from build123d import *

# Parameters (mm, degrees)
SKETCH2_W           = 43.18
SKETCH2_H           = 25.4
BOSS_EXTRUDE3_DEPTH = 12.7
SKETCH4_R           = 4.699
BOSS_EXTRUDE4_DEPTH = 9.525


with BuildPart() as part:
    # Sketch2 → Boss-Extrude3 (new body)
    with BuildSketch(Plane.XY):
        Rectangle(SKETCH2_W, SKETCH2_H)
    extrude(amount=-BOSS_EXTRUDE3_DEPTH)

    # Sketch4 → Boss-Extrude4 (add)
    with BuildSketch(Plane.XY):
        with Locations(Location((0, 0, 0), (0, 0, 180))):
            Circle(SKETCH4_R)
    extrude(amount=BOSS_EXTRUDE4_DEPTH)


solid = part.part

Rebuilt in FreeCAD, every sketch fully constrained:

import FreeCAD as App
import Part
import Sketcher
Q = App.Units.Quantity

doc = App.newDocument("Part")
params = doc.addObject("Spreadsheet::Sheet", "Params")
for row, (alias, value) in enumerate([
    ("sketch1_height", "1 in"),
    ("sketch1_width", "1.7 in"),
    ("pad1_length", "0.5 in"),
    ("sketch2_diameter", "0.37 in"),
    ("pad2_length", "0.375 in"),
], start=1):
    params.set(f"A{row}", alias)
    params.set(f"B{row}", "=" + value)
    params.setAlias(f"B{row}", alias)

body = doc.addObject("PartDesign::Body", "Body")

sketch1 = body.newObject("Sketcher::SketchObject", "Sketch")
sketch1.AttachmentSupport = (doc.getObject("XY_Plane"), [""])
sketch1.MapMode = "FlatFace"
sketch1.addGeometry(Part.LineSegment(App.Vector(-22, 13, 0), App.Vector(-22, -13, 0)), False)
sketch1.addGeometry(Part.LineSegment(App.Vector(-22, -13, 0), App.Vector(22, -13, 0)), False)
sketch1.addGeometry(Part.LineSegment(App.Vector(22, -13, 0), App.Vector(22, 13, 0)), False)
sketch1.addGeometry(Part.LineSegment(App.Vector(22, 13, 0), App.Vector(-22, 13, 0)), False)
sketch1.addConstraint(Sketcher.Constraint("Coincident", 0, 2, 1, 1))
sketch1.addConstraint(Sketcher.Constraint("Coincident", 1, 2, 2, 1))
sketch1.addConstraint(Sketcher.Constraint("Coincident", 2, 2, 3, 1))
sketch1.addConstraint(Sketcher.Constraint("Coincident", 3, 2, 0, 1))
sketch1.addConstraint(Sketcher.Constraint("Vertical", 0))
sketch1.addConstraint(Sketcher.Constraint("Horizontal", 1))
sketch1.addConstraint(Sketcher.Constraint("Vertical", 2))
sketch1.addConstraint(Sketcher.Constraint("Horizontal", 3))
sketch1.addConstraint(Sketcher.Constraint("Symmetric", 0, 2, 2, 2, -1, 1))
sketch1.addConstraint(Sketcher.Constraint("DistanceY", 0, 2, 0, 1, Q("1 in")))
sketch1.addConstraint(Sketcher.Constraint("DistanceX", 1, 1, 1, 2, Q("1.7 in")))
sketch1.setExpression("Constraints[9]", "Params.sketch1_height")
sketch1.setExpression("Constraints[10]", "Params.sketch1_width")
pad1 = body.newObject("PartDesign::Pad", "Pad")
pad1.Profile = sketch1
pad1.setExpression("Length", "Params.pad1_length")
pad1.Reversed = True

sketch2 = body.newObject("Sketcher::SketchObject", "Sketch001")
sketch2.AttachmentSupport = (doc.getObject("XY_Plane"), [""])
sketch2.MapMode = "FlatFace"
sketch2.addGeometry(Part.Circle(App.Vector(0, 0, 0), App.Vector(0, 0, 1), 4.7), False)
sketch2.addConstraint(Sketcher.Constraint("Coincident", 0, 3, -1, 1))
sketch2.addConstraint(Sketcher.Constraint("Diameter", 0, Q("0.37 in")))
sketch2.setExpression("Constraints[1]", "Params.sketch2_diameter")
pad2 = body.newObject("PartDesign::Pad", "Pad001")
pad2.Profile = sketch2
pad2.setExpression("Length", "Params.pad2_length")

doc.recompute()
